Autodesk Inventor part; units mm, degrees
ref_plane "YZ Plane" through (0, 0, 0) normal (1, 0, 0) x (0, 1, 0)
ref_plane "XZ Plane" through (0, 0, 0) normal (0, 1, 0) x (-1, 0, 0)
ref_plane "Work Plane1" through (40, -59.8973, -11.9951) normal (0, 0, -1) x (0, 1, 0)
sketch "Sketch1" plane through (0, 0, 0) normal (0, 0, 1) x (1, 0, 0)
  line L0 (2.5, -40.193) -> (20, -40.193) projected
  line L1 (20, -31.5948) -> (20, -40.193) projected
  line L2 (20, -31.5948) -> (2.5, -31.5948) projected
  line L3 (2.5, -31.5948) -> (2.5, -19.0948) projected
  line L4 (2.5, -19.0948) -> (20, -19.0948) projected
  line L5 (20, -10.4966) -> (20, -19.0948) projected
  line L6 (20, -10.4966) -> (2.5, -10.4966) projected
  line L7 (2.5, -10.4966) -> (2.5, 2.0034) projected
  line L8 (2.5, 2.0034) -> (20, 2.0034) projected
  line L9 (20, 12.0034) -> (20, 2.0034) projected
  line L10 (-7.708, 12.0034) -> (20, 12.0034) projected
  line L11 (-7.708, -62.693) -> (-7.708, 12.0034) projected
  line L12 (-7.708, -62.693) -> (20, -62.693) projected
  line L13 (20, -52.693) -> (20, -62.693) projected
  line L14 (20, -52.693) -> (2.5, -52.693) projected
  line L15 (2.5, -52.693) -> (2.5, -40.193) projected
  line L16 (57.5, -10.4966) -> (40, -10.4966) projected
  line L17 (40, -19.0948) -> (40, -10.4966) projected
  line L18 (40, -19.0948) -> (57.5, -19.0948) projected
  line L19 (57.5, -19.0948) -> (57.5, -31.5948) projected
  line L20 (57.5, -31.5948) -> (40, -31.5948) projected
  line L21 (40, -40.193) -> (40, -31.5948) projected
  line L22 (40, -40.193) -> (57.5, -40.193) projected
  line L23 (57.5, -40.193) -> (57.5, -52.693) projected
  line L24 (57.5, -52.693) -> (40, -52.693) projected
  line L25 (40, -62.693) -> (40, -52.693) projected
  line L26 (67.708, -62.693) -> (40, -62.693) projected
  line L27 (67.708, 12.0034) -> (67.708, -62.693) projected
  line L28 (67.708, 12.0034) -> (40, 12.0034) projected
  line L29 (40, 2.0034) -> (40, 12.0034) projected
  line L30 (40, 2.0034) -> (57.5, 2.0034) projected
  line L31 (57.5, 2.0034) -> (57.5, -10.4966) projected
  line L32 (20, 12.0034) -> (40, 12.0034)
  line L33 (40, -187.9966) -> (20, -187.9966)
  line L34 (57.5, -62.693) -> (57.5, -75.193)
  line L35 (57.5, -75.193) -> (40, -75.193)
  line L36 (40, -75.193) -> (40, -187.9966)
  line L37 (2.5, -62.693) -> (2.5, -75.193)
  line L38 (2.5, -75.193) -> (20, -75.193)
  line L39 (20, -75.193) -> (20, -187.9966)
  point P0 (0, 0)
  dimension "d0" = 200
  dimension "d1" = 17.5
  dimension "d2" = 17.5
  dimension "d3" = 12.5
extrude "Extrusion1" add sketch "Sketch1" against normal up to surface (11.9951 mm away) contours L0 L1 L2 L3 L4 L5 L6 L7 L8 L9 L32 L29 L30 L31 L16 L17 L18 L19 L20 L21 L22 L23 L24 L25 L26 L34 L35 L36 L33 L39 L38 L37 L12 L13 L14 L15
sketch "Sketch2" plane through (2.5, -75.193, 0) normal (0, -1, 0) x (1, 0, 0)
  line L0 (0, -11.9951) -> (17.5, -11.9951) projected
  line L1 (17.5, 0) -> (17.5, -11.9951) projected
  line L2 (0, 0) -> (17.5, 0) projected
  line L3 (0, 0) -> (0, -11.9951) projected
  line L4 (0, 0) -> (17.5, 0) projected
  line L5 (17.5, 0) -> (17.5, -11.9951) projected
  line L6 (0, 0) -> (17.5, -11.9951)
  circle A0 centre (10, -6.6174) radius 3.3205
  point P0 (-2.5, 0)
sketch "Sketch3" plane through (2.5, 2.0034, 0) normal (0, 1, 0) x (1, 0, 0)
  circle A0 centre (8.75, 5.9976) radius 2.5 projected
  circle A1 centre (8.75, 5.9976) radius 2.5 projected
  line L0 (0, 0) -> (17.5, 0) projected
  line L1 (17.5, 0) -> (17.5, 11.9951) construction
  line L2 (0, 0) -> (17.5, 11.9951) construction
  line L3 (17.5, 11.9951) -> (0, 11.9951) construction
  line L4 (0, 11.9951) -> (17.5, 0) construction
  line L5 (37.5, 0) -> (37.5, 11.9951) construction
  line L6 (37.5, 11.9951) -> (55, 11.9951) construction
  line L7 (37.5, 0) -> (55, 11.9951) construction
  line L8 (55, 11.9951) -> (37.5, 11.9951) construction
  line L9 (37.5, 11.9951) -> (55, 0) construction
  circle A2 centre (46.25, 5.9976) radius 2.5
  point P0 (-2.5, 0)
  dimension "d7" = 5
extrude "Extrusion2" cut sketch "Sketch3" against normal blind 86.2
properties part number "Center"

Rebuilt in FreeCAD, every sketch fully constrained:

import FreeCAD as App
import Part
import Sketcher

V = App.Vector

doc = App.newDocument("Part")
body = doc.addObject("PartDesign::Body", "Body")

sketch1 = body.newObject("Sketcher::SketchObject", "Sketch")
sketch1.AttachmentSupport = (doc.getObject("XY_Plane"), [""])
sketch1.MapMode = "FlatFace"
sketch1.addGeometry([
    Part.LineSegment(V(20, -40, 0), V(2, -40, 0)),
    Part.LineSegment(V(2, -40, 0), V(2, -53, 0)),
    Part.LineSegment(V(2, -53, 0), V(20, -53, 0)),
    Part.LineSegment(V(20, -53, 0), V(20, -63, 0)),
    Part.LineSegment(V(20, -63, 0), V(2, -63, 0)),
    Part.LineSegment(V(2, -63, 0), V(2, -75, 0)),
    Part.LineSegment(V(2, -75, 0), V(20, -75, 0)),
    Part.LineSegment(V(20, -75, 0), V(20, -188, 0)),
    Part.LineSegment(V(20, -188, 0), V(40, -188, 0)),
    Part.LineSegment(V(40, -188, 0), V(40, -75, 0)),
    Part.LineSegment(V(40, -75, 0), V(58, -75, 0)),
    Part.LineSegment(V(58, -75, 0), V(58, -63, 0)),
    Part.LineSegment(V(58, -63, 0), V(40, -63, 0)),
    Part.LineSegment(V(40, -63, 0), V(40, -53, 0)),
    Part.LineSegment(V(40, -53, 0), V(58, -53, 0)),
    Part.LineSegment(V(58, -53, 0), V(58, -40, 0)),
    Part.LineSegment(V(58, -40, 0), V(40, -40, 0)),
    Part.LineSegment(V(40, -40, 0), V(40, -32, 0)),
    Part.LineSegment(V(40, -32, 0), V(58, -32, 0)),
    Part.LineSegment(V(58, -32, 0), V(58, -19, 0)),
    Part.LineSegment(V(58, -19, 0), V(40, -19, 0)),
    Part.LineSegment(V(40, -19, 0), V(40, -10, 0)),
    Part.LineSegment(V(40, -10, 0), V(58, -10, 0)),
    Part.LineSegment(V(58, -10, 0), V(58, 2, 0)),
    Part.LineSegment(V(58, 2, 0), V(40, 2, 0)),
    Part.LineSegment(V(40, 2, 0), V(40, 12, 0)),
    Part.LineSegment(V(40, 12, 0), V(20, 12, 0)),
    Part.LineSegment(V(20, 12, 0), V(20, 2, 0)),
    Part.LineSegment(V(20, 2, 0), V(2, 2, 0)),
    Part.LineSegment(V(2, 2, 0), V(2, -10, 0)),
    Part.LineSegment(V(2, -10, 0), V(20, -10, 0)),
    Part.LineSegment(V(20, -10, 0), V(20, -19, 0)),
    Part.LineSegment(V(20, -19, 0), V(2, -19, 0)),
    Part.LineSegment(V(2, -19, 0), V(2, -32, 0)),
    Part.LineSegment(V(2, -32, 0), V(20, -32, 0)),
    Part.LineSegment(V(20, -32, 0), V(20, -40, 0)),
], False)
sketch1.addConstraint([
    Sketcher.Constraint("Coincident", 0, 2, 1, 1),
    Sketcher.Constraint("Coincident", 1, 2, 2, 1),
    Sketcher.Constraint("Coincident", 2, 2, 3, 1),
    Sketcher.Constraint("Coincident", 3, 2, 4, 1),
    Sketcher.Constraint("Coincident", 4, 2, 5, 1),
    Sketcher.Constraint("Coincident", 5, 2, 6, 1),
    Sketcher.Constraint("Coincident", 6, 2, 7, 1),
    Sketcher.Constraint("Coincident", 7, 2, 8, 1),
    Sketcher.Constraint("Coincident", 8, 2, 9, 1),
    Sketcher.Constraint("Coincident", 9, 2, 10, 1),
    Sketcher.Constraint("Coincident", 10, 2, 11, 1),
    Sketcher.Constraint("Coincident", 11, 2, 12, 1),
    Sketcher.Constraint("Coincident", 12, 2, 13, 1),
    Sketcher.Constraint("Coincident", 13, 2, 14, 1),
    Sketcher.Constraint("Coincident", 14, 2, 15, 1),
    Sketcher.Constraint("Coincident", 15, 2, 16, 1),
    Sketcher.Constraint("Coincident", 16, 2, 17, 1),
    Sketcher.Constraint("Coincident", 17, 2, 18, 1),
    Sketcher.Constraint("Coincident", 18, 2, 19, 1),
    Sketcher.Constraint("Coincident", 19, 2, 20, 1),
    Sketcher.Constraint("Coincident", 20, 2, 21, 1),
    Sketcher.Constraint("Coincident", 21, 2, 22, 1),
    Sketcher.Constraint("Coincident", 22, 2, 23, 1),
    Sketcher.Constraint("Coincident", 23, 2, 24, 1),
    Sketcher.Constraint("Coincident", 24, 2, 25, 1),
    Sketcher.Constraint("Coincident", 25, 2, 26, 1),
    Sketcher.Constraint("Coincident", 26, 2, 27, 1),
    Sketcher.Constraint("Coincident", 27, 2, 28, 1),
    Sketcher.Constraint("Coincident", 28, 2, 29, 1),
    Sketcher.Constraint("Coincident", 29, 2, 30, 1),
    Sketcher.Constraint("Coincident", 30, 2, 31, 1),
    Sketcher.Constraint("Coincident", 31, 2, 32, 1),
    Sketcher.Constraint("Coincident", 32, 2, 33, 1),
    Sketcher.Constraint("Coincident", 33, 2, 34, 1),
    Sketcher.Constraint("Coincident", 34, 2, 35, 1),
    Sketcher.Constraint("Coincident", 35, 2, 0, 1),
    Sketcher.Constraint("Horizontal", 0),
    Sketcher.Constraint("Vertical", 1),
    Sketcher.Constraint("Horizontal", 2),
    Sketcher.Constraint("Vertical", 3),
    Sketcher.Constraint("Horizontal", 4),
    Sketcher.Constraint("Vertical", 5),
    Sketcher.Constraint("Horizontal", 6),
    Sketcher.Constraint("Vertical", 7),
    Sketcher.Constraint("Horizontal", 8),
    Sketcher.Constraint("Vertical", 9),
    Sketcher.Constraint("Horizontal", 10),
    Sketcher.Constraint("Vertical", 11),
    Sketcher.Constraint("Horizontal", 12),
    Sketcher.Constraint("Vertical", 13),
    Sketcher.Constraint("Horizontal", 14),
    Sketcher.Constraint("Vertical", 15),
    Sketcher.Constraint("Horizontal", 16),
    Sketcher.Constraint("Vertical", 17),
    Sketcher.Constraint("Horizontal", 18),
    Sketcher.Constraint("Vertical", 19),
    Sketcher.Constraint("Horizontal", 20),
    Sketcher.Constraint("Vertical", 21),
    Sketcher.Constraint("Horizontal", 22),
    Sketcher.Constraint("Vertical", 23),
    Sketcher.Constraint("Horizontal", 24),
    Sketcher.Constraint("Vertical", 25),
    Sketcher.Constraint("Horizontal", 26),
    Sketcher.Constraint("Vertical", 27),
    Sketcher.Constraint("Horizontal", 28),
    Sketcher.Constraint("Vertical", 29),
    Sketcher.Constraint("Horizontal", 30),
    Sketcher.Constraint("Vertical", 31),
    Sketcher.Constraint("Horizontal", 32),
    Sketcher.Constraint("Vertical", 33),
    Sketcher.Constraint("Horizontal", 34),
    Sketcher.Constraint("Vertical", 35),
    Sketcher.Constraint("Horizontal", 6, 2, 9, 2),
    Sketcher.Constraint("Horizontal", 4, 2, 11, 2),
    Sketcher.Constraint("Horizontal", 2, 2, 13, 2),
    Sketcher.Constraint("Horizontal", 0, 2, 15, 2),
    Sketcher.Constraint("Horizontal", 24, 2, 27, 2),
    Sketcher.Constraint("Horizontal", 22, 2, 29, 2),
    Sketcher.Constraint("Horizontal", 20, 2, 31, 2),
    Sketcher.Constraint("Horizontal", 18, 2, 33, 2),
    Sketcher.Constraint("Vertical", 1, 2, 4, 2),
    Sketcher.Constraint("Vertical", 3, 2, 6, 2),
    Sketcher.Constraint("Vertical", 9, 2, 12, 2),
    Sketcher.Constraint("Vertical", 11, 2, 14, 2),
    Sketcher.Constraint("Vertical", 13, 2, 16, 2),
    Sketcher.Constraint("Vertical", 15, 2, 18, 2),
    Sketcher.Constraint("Vertical", 17, 2, 20, 2),
    Sketcher.Constraint("Vertical", 19, 2, 22, 2),
    Sketcher.Constraint("Vertical", 21, 2, 24, 2),
    Sketcher.Constraint("Vertical", 7, 2, 26, 2),
    Sketcher.Constraint("Vertical", 5, 2, 28, 2),
    Sketcher.Constraint("Vertical", 27, 2, 30, 2),
    Sketcher.Constraint("Vertical", 29, 2, 32, 2),
    Sketcher.Constraint("Vertical", 31, 2, 34, 2),
    Sketcher.Constraint("Equal", 6, 10),
    Sketcher.Constraint("Equal", 1, 5),
    Sketcher.Constraint("Equal", 15, 19),
    Sketcher.Constraint("Equal", 17, 21),
    Sketcher.Constraint("Equal", 19, 23),
    Sketcher.Constraint("Equal", 13, 25),
    Sketcher.Constraint("DistanceX", 0, 2, 0, 1, 17.5),
    Sketcher.Constraint("DistanceY", 1, 2, 1, 1, 12.5),
    Sketcher.Constraint("DistanceX", 8, 1, 8, 2, 20.0),
    Sketcher.Constraint("DistanceY", 3, 2, 3, 1, 10.0),
    Sketcher.Constraint("DistanceX", -1, 1, 2, 2, 20.0),
    Sketcher.Constraint("DistanceY", 7, 2, 7, 1, 112.8036),
    Sketcher.Constraint("DistanceY", 17, 1, 17, 2, 8.5982),
    Sketcher.Constraint("DistanceY", 0, 2, -1, 1, 40.193),
])
pad1 = body.newObject("PartDesign::Pad", "Pad")
pad1.Profile = sketch1
pad1.Length = 11.9951
pad1.Reversed = True

sketch2 = body.newObject("Sketcher::SketchObject", "Sketch001")
sketch2.AttachmentSupport = (doc.getObject("XZ_Plane"), [""])
sketch2.MapMode = "FlatFace"
sketch2.AttachmentOffset = App.Placement(V(0, 0, -2.0034), App.Rotation())
sketch2.addGeometry([
    Part.Circle(V(11.2, -6, 0), V(0, 0, 1), 2.5),
    Part.Circle(V(48.8, -6, 0), V(0, 0, 1), 2.5),
], False)
sketch2.addConstraint([
    Sketcher.Constraint("Equal", 0, 1),
    Sketcher.Constraint("Horizontal", 0, 3, 1, 3),
    Sketcher.Constraint("Diameter", 0, 5.0),
    Sketcher.Constraint("DistanceX", 0, 3, 1, 3, 37.5),
    Sketcher.Constraint("DistanceX", -1, 1, 0, 3, 11.25),
    Sketcher.Constraint("DistanceY", 0, 3, -1, 1, 5.9976),
])
pocket1 = body.newObject("PartDesign::Pocket", "Pocket")
pocket1.Profile = sketch2
pocket1.Length = 86.2
pocket1.Reversed = True

doc.recompute()
